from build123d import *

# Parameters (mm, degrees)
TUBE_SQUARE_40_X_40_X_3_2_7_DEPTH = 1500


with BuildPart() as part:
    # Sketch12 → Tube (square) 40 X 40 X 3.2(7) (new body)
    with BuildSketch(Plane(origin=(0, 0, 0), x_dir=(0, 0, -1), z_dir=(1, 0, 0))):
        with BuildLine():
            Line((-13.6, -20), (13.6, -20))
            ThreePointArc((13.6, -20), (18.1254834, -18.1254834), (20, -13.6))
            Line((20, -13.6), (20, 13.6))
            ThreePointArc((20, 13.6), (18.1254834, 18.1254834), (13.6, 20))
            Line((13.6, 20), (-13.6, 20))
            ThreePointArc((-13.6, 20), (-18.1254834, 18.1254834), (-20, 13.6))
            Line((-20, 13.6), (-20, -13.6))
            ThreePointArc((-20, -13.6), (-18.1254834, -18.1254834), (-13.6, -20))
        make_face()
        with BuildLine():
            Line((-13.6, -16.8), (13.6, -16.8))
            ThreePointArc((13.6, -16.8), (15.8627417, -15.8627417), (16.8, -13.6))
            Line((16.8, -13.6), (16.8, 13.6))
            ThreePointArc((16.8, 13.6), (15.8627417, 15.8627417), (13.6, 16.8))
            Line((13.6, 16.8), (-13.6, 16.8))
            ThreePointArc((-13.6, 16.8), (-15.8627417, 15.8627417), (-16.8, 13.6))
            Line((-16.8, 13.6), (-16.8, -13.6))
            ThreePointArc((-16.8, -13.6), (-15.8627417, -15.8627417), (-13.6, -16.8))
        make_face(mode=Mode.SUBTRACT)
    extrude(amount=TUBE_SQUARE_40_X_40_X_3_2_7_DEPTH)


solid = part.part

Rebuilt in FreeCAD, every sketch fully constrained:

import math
import FreeCAD as App
import Part
import Sketcher

doc = App.newDocument("Part")
params = doc.addObject("Spreadsheet::Sheet", "Params")
for row, (alias, value) in enumerate([
    ("sketch1_radius", "6.4 mm"),
    ("sketch1_radius2", "3.2 mm"),
    ("sketch1_width", "27.2 mm"),
    ("pad1_length", "1500 mm"),
], start=1):
    params.set(f"A{row}", alias)
    params.set(f"B{row}", "=" + value)
    params.setAlias(f"B{row}", alias)

body = doc.addObject("PartDesign::Body", "Body")

sketch1 = body.newObject("Sketcher::SketchObject", "Sketch")
sketch1.AttachmentSupport = (doc.getObject("YZ_Plane"), [""])
sketch1.MapMode = "FlatFace"
sketch1.addGeometry(Part.LineSegment(App.Vector(-20, 13.6, 0), App.Vector(-20, -13.6, 0)), False)
sketch1.addGeometry(Part.ArcOfCircle(Part.Circle(App.Vector(-13.6, -13.6, 0), App.Vector(0, 0, 1), 6.4), math.radians(180), math.radians(270)), False)
sketch1.addGeometry(Part.LineSegment(App.Vector(-13.6, -20, 0), App.Vector(13.6, -20, 0)), False)
sketch1.addGeometry(Part.ArcOfCircle(Part.Circle(App.Vector(13.6, -13.6, 0), App.Vector(0, 0, 1), 6.4), math.radians(-90), math.radians(0)), False)
sketch1.addGeometry(Part.LineSegment(App.Vector(20, -13.6, 0), App.Vector(20, 13.6, 0)), False)
sketch1.addGeometry(Part.ArcOfCircle(Part.Circle(App.Vector(13.6, 13.6, 0), App.Vector(0, 0, 1), 6.4), math.radians(0), math.radians(90)), False)
sketch1.addGeometry(Part.LineSegment(App.Vector(13.6, 20, 0), App.Vector(-13.6, 20, 0)), False)
sketch1.addGeometry(Part.ArcOfCircle(Part.Circle(App.Vector(-13.6, 13.6, 0), App.Vector(0, 0, 1), 6.4), math.radians(90), math.radians(180)), False)
sketch1.addGeometry(Part.LineSegment(App.Vector(-16.8, -13.6, 0), App.Vector(-16.8, 13.6, 0)), False)
sketch1.addGeometry(Part.ArcOfCircle(Part.Circle(App.Vector(-13.6, 13.6, 0), App.Vector(0, 0, 1), 3.2), math.radians(90), math.radians(180)), False)
sketch1.addGeometry(Part.LineSegment(App.Vector(-13.6, 16.8, 0), App.Vector(13.6, 16.8, 0)), False)
sketch1.addGeometry(Part.ArcOfCircle(Part.Circle(App.Vector(13.6, 13.6, 0), App.Vector(0, 0, 1), 3.2), math.radians(0), math.radians(90)), False)
sketch1.addGeometry(Part.LineSegment(App.Vector(16.8, 13.6, 0), App.Vector(16.8, -13.6, 0)), False)
sketch1.addGeometry(Part.ArcOfCircle(Part.Circle(App.Vector(13.6, -13.6, 0), App.Vector(0, 0, 1), 3.2), math.radians(-90), math.radians(0)), False)
sketch1.addGeometry(Part.LineSegment(App.Vector(13.6, -16.8, 0), App.Vector(-13.6, -16.8, 0)), False)
sketch1.addGeometry(Part.ArcOfCircle(Part.Circle(App.Vector(-13.6, -13.6, 0), App.Vector(0, 0, 1), 3.2), math.radians(180), math.radians(270)), False)
sketch1.addConstraint(Sketcher.Constraint("Tangent", 0, 2, 1, 1))
sketch1.addConstraint(Sketcher.Constraint("Tangent", 1, 2, 2, 1))
sketch1.addConstraint(Sketcher.Constraint("Tangent", 2, 2, 3, 1))
sketch1.addConstraint(Sketcher.Constraint("Tangent", 3, 2, 4, 1))
sketch1.addConstraint(Sketcher.Constraint("Tangent", 4, 2, 5, 1))
sketch1.addConstraint(Sketcher.Constraint("Tangent", 5, 2, 6, 1))
sketch1.addConstraint(Sketcher.Constraint("Tangent", 6, 2, 7, 1))
sketch1.addConstraint(Sketcher.Constraint("Tangent", 7, 2, 0, 1))
sketch1.addConstraint(Sketcher.Constraint("Tangent", 8, 2, 9, 2))
sketch1.addConstraint(Sketcher.Constraint("Tangent", 9, 1, 10, 1))
sketch1.addConstraint(Sketcher.Constraint("Tangent", 10, 2, 11, 2))
sketch1.addConstraint(Sketcher.Constraint("Tangent", 11, 1, 12, 1))
sketch1.addConstraint(Sketcher.Constraint("Tangent", 12, 2, 13, 2))
sketch1.addConstraint(Sketcher.Constraint("Tangent", 13, 1, 14, 1))
sketch1.addConstraint(Sketcher.Constraint("Tangent", 14, 2, 15, 2))
sketch1.addConstraint(Sketcher.Constraint("Tangent", 15, 1, 8, 1))
sketch1.addConstraint(Sketcher.Constraint("Vertical", 0))
sketch1.addConstraint(Sketcher.Constraint("Horizontal", 2))
sketch1.addConstraint(Sketcher.Constraint("Vertical", 4))
sketch1.addConstraint(Sketcher.Constraint("Horizontal", 6))
sketch1.addConstraint(Sketcher.Constraint("Vertical", 8))
sketch1.addConstraint(Sketcher.Constraint("Horizontal", 10))
sketch1.addConstraint(Sketcher.Constraint("Vertical", 12))
sketch1.addConstraint(Sketcher.Constraint("Horizontal", 14))
sketch1.addConstraint(Sketcher.Constraint("Coincident", 9, 3, 7, 3))
sketch1.addConstraint(Sketcher.Constraint("Coincident", 11, 3, 5, 3))
sketch1.addConstraint(Sketcher.Constraint("Coincident", 13, 3, 3, 3))
sketch1.addConstraint(Sketcher.Constraint("Equal", 1, 3))
sketch1.addConstraint(Sketcher.Constraint("Equal", 3, 5))
sketch1.addConstraint(Sketcher.Constraint("Equal", 5, 7))
sketch1.addConstraint(Sketcher.Constraint("Equal", 13, 15))
sketch1.addConstraint(Sketcher.Constraint("Symmetric", 1, 3, 5, 3, -1, 1))
sketch1.addConstraint(Sketcher.Constraint("Equal", 14, 0))
sketch1.addConstraint(Sketcher.Constraint("Radius", 1, 6.4))
sketch1.addConstraint(Sketcher.Constraint("Radius", 9, 3.2))
sketch1.addConstraint(Sketcher.Constraint("DistanceX", 2, 1, 2, 2, 27.2))
sketch1.setExpression("Constraints[33]", "Params.sketch1_radius")
sketch1.setExpression("Constraints[34]", "Params.sketch1_radius2")
sketch1.setExpression("Constraints[35]", "Params.sketch1_width")
pad1 = body.newObject("PartDesign::Pad", "Pad")
pad1.Profile = sketch1
pad1.setExpression("Length", "Params.pad1_length")

doc.recompute()
